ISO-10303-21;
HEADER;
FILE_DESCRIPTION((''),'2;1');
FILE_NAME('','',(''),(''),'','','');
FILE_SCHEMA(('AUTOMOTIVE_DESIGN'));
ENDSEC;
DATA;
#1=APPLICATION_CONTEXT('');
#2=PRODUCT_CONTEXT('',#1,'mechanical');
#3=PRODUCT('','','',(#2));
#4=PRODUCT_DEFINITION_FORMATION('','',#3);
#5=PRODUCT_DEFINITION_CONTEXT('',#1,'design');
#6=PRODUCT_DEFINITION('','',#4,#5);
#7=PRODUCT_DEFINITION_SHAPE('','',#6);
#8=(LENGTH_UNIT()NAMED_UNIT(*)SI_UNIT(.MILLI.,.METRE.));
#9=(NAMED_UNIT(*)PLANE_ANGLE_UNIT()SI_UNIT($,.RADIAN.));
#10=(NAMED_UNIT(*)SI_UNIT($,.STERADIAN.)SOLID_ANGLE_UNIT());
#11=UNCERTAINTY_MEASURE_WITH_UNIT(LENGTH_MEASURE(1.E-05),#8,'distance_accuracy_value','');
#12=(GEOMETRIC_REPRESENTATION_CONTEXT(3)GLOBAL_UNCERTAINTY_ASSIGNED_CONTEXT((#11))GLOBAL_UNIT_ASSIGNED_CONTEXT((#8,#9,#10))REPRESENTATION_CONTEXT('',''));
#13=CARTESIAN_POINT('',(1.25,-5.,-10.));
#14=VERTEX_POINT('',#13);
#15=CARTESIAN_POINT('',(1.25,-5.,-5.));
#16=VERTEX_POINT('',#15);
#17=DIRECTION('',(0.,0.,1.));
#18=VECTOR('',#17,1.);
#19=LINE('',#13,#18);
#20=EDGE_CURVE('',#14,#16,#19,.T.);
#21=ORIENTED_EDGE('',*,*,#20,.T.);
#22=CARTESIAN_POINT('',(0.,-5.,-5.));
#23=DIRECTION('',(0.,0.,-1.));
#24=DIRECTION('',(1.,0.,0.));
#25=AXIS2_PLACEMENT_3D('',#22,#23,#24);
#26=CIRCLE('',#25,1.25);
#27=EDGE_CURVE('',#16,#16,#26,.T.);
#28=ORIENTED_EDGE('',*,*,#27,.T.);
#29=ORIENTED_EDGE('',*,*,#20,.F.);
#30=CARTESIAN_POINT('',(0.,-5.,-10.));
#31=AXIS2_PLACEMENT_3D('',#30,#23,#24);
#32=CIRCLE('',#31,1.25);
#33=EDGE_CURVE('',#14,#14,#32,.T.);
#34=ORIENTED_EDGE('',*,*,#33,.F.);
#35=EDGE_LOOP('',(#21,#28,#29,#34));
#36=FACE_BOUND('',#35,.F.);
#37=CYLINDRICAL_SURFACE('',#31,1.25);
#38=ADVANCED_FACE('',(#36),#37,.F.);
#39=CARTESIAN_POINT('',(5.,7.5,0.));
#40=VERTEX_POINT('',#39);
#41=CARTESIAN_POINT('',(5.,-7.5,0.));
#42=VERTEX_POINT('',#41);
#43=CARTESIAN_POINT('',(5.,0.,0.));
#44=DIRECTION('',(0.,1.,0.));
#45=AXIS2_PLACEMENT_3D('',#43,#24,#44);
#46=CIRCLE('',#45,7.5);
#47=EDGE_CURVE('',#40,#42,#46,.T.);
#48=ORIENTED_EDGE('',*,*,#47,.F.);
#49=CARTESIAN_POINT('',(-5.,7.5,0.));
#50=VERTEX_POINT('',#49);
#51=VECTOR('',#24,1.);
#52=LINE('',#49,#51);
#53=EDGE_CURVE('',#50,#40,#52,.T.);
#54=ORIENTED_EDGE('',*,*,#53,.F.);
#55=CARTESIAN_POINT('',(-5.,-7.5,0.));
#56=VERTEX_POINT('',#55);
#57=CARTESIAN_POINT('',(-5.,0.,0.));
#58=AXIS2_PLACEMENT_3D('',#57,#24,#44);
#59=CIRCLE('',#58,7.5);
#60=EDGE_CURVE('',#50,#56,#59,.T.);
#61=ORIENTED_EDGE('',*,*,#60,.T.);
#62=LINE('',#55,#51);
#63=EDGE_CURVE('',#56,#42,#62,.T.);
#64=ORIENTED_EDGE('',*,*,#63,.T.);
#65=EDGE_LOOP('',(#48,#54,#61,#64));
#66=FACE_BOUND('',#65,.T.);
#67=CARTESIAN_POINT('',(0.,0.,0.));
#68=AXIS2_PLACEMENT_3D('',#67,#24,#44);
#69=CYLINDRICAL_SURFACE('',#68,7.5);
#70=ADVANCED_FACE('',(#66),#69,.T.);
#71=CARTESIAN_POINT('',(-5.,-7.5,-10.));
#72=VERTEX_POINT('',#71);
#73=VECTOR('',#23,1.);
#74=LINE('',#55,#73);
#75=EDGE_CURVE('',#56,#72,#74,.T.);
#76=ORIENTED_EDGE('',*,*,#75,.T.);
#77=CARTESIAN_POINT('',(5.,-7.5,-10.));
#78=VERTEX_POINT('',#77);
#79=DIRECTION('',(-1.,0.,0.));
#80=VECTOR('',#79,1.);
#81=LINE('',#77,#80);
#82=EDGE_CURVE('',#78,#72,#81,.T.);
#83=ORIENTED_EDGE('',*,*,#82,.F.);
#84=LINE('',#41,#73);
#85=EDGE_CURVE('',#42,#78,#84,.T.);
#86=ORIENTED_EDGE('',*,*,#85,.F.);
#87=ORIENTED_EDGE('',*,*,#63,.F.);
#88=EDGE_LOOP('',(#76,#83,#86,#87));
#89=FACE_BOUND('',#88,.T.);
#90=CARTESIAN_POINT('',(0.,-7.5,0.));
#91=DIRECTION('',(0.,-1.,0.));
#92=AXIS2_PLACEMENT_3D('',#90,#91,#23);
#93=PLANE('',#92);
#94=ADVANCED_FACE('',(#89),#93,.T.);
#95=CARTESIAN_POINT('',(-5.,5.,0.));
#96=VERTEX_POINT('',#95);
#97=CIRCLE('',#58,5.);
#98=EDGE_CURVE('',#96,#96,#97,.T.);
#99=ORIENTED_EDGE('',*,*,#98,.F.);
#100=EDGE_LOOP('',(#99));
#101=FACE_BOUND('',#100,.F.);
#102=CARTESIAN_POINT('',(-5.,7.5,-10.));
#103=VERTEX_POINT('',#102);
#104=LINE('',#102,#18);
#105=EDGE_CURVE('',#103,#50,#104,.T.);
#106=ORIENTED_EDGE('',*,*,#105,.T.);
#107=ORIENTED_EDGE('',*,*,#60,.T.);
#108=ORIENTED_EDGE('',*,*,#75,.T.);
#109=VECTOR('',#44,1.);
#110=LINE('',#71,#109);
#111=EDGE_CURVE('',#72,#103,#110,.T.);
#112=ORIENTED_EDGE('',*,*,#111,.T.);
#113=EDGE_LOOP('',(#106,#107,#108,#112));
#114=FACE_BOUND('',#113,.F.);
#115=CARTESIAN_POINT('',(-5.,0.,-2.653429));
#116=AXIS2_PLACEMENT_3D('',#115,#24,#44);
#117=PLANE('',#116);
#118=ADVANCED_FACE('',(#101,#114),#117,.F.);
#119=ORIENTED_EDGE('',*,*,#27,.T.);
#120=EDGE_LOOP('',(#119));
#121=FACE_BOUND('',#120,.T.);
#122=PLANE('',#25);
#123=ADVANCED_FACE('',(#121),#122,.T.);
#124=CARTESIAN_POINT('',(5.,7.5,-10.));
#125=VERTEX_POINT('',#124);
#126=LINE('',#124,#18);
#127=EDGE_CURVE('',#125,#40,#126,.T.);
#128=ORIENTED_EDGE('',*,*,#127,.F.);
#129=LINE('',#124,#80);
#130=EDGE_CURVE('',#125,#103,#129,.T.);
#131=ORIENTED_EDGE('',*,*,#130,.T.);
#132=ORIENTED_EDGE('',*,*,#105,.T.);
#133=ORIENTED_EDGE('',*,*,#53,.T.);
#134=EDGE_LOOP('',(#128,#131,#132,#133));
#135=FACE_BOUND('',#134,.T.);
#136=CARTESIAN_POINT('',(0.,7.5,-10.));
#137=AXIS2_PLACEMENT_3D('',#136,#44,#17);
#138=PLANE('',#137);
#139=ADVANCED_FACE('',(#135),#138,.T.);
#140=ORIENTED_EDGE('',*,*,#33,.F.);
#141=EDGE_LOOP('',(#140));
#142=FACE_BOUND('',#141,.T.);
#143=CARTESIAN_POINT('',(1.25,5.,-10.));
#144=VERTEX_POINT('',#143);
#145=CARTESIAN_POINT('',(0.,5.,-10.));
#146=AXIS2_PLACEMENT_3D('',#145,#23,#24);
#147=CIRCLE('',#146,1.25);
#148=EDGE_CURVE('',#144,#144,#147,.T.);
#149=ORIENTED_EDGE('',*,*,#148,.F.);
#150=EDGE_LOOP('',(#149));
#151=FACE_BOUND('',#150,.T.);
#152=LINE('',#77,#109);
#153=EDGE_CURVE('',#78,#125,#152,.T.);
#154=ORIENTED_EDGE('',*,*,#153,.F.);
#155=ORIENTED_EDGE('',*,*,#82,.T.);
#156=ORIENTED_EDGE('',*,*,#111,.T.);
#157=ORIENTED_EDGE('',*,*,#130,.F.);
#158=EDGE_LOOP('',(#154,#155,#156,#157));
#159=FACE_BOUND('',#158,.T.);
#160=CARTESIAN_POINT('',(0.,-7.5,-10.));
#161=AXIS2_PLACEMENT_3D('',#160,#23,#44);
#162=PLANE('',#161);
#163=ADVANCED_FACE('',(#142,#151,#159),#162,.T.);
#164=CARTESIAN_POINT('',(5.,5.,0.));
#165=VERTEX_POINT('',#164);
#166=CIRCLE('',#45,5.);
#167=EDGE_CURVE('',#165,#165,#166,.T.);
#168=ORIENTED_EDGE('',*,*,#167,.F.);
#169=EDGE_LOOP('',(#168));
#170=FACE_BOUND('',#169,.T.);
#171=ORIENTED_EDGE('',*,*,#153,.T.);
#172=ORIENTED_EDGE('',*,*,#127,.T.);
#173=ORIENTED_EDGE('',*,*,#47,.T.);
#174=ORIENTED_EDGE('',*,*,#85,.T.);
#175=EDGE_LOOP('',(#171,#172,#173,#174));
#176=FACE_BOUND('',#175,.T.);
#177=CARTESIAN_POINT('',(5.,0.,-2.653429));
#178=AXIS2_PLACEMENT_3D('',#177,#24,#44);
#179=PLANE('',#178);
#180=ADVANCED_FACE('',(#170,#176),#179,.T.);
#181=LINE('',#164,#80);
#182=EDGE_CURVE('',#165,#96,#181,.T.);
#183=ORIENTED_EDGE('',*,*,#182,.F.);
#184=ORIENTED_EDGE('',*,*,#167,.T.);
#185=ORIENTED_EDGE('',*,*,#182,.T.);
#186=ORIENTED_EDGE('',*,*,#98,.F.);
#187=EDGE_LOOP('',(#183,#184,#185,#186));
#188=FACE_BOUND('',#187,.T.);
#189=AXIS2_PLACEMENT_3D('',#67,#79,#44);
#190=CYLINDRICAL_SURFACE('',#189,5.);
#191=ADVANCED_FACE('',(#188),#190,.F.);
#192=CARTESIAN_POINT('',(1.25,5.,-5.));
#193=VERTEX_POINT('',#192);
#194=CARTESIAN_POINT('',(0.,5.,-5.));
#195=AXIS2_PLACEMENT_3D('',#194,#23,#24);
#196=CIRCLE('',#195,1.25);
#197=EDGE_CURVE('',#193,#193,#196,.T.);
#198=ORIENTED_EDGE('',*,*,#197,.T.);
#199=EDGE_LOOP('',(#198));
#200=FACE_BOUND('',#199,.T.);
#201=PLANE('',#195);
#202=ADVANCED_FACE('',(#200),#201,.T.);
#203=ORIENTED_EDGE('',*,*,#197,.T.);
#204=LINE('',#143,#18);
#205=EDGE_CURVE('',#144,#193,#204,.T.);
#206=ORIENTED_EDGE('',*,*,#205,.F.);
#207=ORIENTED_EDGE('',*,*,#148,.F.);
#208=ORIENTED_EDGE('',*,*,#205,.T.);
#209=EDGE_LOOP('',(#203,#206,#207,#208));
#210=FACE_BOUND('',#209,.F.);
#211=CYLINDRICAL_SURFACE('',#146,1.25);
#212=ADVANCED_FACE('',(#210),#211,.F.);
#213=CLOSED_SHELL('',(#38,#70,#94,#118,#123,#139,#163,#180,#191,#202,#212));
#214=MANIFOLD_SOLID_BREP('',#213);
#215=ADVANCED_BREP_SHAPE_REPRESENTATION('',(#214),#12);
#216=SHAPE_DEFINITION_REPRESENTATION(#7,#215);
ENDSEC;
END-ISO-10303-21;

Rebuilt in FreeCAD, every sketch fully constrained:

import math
import FreeCAD as App
import Part
import Sketcher

V = App.Vector

doc = App.newDocument("Part")
params = doc.addObject("Spreadsheet::Sheet", "Params")
for row, (alias, value) in enumerate([
    ("sketch1_diameter", "10 mm"),
    ("sketch1_radius", "7.5 mm"),
    ("sketch1_height", "10 mm"),
    ("pad1_length", "10 mm"),
    ("sketch2_diameter", "2.5 mm"),
    ("pocket1_length", "5 mm"),
], start=1):
    params.set(f"A{row}", alias)
    params.set(f"B{row}", "=" + value)
    params.setAlias(f"B{row}", alias)

body = doc.addObject("PartDesign::Body", "Body")

# Sketch on YZ plane
sketch1 = body.newObject("Sketcher::SketchObject", "Sketch")
sketch1.AttachmentSupport = (doc.getObject("YZ_Plane"), [""])
sketch1.MapMode = "FlatFace"
sketch1.addGeometry([
    Part.LineSegment(V(8, -10, 0), V(8, 0, 0)),  # 0
    Part.ArcOfCircle(Part.Circle(V(0, 0, 0), V(0, 0, 1), 8), math.radians(0), math.radians(180)),  # 1
    Part.LineSegment(V(-8, 0, 0), V(-8, -10, 0)),  # 2
    Part.LineSegment(V(-8, -10, 0), V(8, -10, 0)),  # 3
    Part.Circle(V(0, 0, 0), V(0, 0, 1), 5),  # 4
], False)
sketch1.addConstraint([
    Sketcher.Constraint("Tangent", 0, 2, 1, 1),
    Sketcher.Constraint("Tangent", 1, 2, 2, 1),
    Sketcher.Constraint("Coincident", 2, 2, 3, 1),
    Sketcher.Constraint("Coincident", 3, 2, 0, 1),
    Sketcher.Constraint("Vertical", 0),
    Sketcher.Constraint("Vertical", 2),
    Sketcher.Constraint("Horizontal", 3),
    Sketcher.Constraint("Coincident", 1, 3, -1, 1),
    Sketcher.Constraint("Coincident", 4, 3, -1, 1),
    Sketcher.Constraint("Diameter", 4, 10.0),
    Sketcher.Constraint("Radius", 1, 7.5),
    Sketcher.Constraint("DistanceY", 0, 1, 0, 2, 10.0),
])
sketch1.setExpression("Constraints[9]", "Params.sketch1_diameter")
sketch1.setExpression("Constraints[10]", "Params.sketch1_radius")
sketch1.setExpression("Constraints[11]", "Params.sketch1_height")
pad1 = body.newObject("PartDesign::Pad", "Pad")
pad1.Profile = sketch1
pad1.setExpression("Length", "Params.pad1_length")
pad1.Midplane = True

# Sketch on XY plane
sketch2 = body.newObject("Sketcher::SketchObject", "Sketch001")
sketch2.AttachmentSupport = (doc.getObject("XY_Plane"), [""])
sketch2.MapMode = "FlatFace"
sketch2.AttachmentOffset = App.Placement(V(0, 0, -10), App.Rotation())
sketch2.addGeometry([
    Part.Circle(V(0, 5, 0), V(0, 0, 1), 1.2),
    Part.Circle(V(0, -5, 0), V(0, 0, 1), 1.2),
], False)
sketch2.addConstraint([
    Sketcher.Constraint("Equal", 0, 1),
    Sketcher.Constraint("Symmetric", 0, 3, 1, 3, -1, 1),
    Sketcher.Constraint("PointOnObject", 0, 3, -2),
    Sketcher.Constraint("Diameter", 0, 2.5),
    Sketcher.Constraint("DistanceY", -1, 1, 0, 3, 5.0),
])
sketch2.setExpression("Constraints[3]", "Params.sketch2_diameter")
pocket1 = body.newObject("PartDesign::Pocket", "Pocket")
pocket1.Profile = sketch2
pocket1.setExpression("Length", "Params.pocket1_length")
pocket1.Reversed = True

doc.recompute()
